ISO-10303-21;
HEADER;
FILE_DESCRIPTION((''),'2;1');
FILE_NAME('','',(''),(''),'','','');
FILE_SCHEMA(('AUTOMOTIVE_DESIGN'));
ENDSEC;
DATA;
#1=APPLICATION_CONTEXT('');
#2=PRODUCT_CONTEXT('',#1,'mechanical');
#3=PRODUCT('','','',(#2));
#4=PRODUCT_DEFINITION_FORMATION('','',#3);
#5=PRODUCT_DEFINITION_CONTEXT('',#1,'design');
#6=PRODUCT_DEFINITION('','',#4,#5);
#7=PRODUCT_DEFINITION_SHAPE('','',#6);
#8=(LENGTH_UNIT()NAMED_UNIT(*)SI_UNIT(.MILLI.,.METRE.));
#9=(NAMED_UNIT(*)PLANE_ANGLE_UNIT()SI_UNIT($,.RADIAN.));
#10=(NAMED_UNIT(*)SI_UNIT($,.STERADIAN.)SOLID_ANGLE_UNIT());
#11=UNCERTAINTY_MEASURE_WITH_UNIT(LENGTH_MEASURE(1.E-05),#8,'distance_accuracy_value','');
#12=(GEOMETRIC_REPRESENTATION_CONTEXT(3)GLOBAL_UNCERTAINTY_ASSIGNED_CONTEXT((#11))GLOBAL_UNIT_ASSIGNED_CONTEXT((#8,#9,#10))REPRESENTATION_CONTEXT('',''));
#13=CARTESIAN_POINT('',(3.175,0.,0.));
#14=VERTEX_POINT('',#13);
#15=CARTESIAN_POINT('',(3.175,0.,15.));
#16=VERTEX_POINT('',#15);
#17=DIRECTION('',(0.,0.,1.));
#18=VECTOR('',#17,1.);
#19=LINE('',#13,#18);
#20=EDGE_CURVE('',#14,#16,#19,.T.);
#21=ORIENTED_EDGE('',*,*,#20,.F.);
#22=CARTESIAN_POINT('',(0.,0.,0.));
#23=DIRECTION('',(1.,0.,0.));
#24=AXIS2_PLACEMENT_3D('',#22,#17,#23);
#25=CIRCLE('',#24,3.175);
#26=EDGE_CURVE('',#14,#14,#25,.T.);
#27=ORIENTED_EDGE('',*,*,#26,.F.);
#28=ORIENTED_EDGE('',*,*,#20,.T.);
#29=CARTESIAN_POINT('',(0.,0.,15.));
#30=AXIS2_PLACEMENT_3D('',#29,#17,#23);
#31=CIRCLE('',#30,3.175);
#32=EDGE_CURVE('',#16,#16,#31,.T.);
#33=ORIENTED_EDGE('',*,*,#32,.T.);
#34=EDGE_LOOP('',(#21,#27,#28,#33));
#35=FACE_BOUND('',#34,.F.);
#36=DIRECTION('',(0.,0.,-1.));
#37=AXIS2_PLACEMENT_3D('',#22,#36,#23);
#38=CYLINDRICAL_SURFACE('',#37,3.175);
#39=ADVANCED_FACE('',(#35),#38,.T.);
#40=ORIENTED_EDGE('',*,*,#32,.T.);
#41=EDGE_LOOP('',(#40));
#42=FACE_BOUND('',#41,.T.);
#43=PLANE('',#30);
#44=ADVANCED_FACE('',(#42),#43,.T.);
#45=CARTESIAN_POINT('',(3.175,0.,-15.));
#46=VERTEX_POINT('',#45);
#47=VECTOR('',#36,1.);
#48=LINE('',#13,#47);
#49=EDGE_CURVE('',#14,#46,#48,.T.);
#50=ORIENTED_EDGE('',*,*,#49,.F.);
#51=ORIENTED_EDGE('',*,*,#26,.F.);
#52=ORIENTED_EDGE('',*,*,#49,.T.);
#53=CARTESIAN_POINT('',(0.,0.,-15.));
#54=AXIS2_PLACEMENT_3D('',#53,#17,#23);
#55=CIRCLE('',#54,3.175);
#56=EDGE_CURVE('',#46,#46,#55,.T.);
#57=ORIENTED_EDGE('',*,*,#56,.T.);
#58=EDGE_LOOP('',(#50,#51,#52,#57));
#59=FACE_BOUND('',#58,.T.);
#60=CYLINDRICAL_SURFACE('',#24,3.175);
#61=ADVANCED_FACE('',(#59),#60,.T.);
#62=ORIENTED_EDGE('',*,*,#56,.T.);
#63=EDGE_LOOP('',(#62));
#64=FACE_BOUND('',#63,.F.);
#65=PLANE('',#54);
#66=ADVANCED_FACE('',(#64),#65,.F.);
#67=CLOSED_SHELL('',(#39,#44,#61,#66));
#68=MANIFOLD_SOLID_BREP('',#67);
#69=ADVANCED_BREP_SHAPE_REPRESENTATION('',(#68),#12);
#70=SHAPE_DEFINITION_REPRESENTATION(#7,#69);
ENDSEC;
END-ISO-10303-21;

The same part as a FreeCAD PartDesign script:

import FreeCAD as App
import Part
import Sketcher

doc = App.newDocument("Part")
params = doc.addObject("Spreadsheet::Sheet", "Params")
for row, (alias, value) in enumerate([
    ("sketch1_diameter", "6.35 mm"),
    ("pad1_length", "30 mm"),
], start=1):
    params.set(f"A{row}", alias)
    params.set(f"B{row}", "=" + value)
    params.setAlias(f"B{row}", alias)

body = doc.addObject("PartDesign::Body", "Body")

# Sketch on XY plane
sketch1 = body.newObject("Sketcher::SketchObject", "Sketch")
sketch1.AttachmentSupport = (doc.getObject("XY_Plane"), [""])
sketch1.MapMode = "FlatFace"
sketch1.addGeometry(Part.Circle(App.Vector(0, 0, 0), App.Vector(0, 0, 1), 3.2), False)
sketch1.addConstraint(Sketcher.Constraint("Coincident", 0, 3, -1, 1))
sketch1.addConstraint(Sketcher.Constraint("Diameter", 0, 6.35))
sketch1.setExpression("Constraints[1]", "Params.sketch1_diameter")
pad1 = body.newObject("PartDesign::Pad", "Pad")
pad1.Profile = sketch1
pad1.setExpression("Length", "Params.pad1_length")
pad1.Midplane = True

doc.recompute()
